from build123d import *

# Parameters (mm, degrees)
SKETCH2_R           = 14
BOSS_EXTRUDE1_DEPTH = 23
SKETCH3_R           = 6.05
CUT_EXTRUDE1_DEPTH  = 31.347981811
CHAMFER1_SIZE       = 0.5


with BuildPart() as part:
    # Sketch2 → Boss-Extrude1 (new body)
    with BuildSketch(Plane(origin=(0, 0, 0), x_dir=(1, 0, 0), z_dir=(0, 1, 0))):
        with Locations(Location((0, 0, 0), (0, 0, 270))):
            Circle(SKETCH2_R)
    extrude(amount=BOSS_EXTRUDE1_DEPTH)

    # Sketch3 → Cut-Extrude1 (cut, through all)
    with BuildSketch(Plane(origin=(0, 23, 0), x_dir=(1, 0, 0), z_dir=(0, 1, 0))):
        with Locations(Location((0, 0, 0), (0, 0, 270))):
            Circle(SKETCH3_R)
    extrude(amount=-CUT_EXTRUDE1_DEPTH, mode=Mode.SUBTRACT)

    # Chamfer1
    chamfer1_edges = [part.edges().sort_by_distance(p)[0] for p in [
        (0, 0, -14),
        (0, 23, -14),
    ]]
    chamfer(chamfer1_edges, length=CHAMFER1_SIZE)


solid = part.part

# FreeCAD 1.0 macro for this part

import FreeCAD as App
import Part
import Sketcher

V = App.Vector
Q = App.Units.Quantity


def edges_at(feature, points):
    """Names of the edges that pass closest to the given points."""
    edges = feature.Shape.Edges
    near = lambda p: min(range(len(edges)), key=lambda i: edges[i].distToShape(Part.Vertex(*p))[0])
    return sorted({f"Edge{near(p) + 1}" for p in points})

doc = App.newDocument("Part")
body = doc.addObject("PartDesign::Body", "Body")

# Sketch on XZ plane
sketch1 = body.newObject("Sketcher::SketchObject", "Sketch")
sketch1.AttachmentSupport = (doc.getObject("XZ_Plane"), [""])
sketch1.MapMode = "FlatFace"
sketch1.addGeometry(Part.Circle(V(0, 0, 0), V(0, 0, 1), 14), False)
sketch1.addConstraint([
    Sketcher.Constraint("Coincident", 0, 3, -1, 1),
    Sketcher.Constraint("Diameter", 0, Q("28 mm")),
])
pad1 = body.newObject("PartDesign::Pad", "Pad")
pad1.Profile = sketch1
pad1.Length = 23
pad1.Reversed = True

# Sketch on XZ plane
sketch2 = body.newObject("Sketcher::SketchObject", "Sketch001")
sketch2.AttachmentSupport = (doc.getObject("XZ_Plane"), [""])
sketch2.MapMode = "FlatFace"
sketch2.AttachmentOffset = App.Placement(V(0, 0, -23), App.Rotation())
sketch2.addGeometry(Part.Circle(V(0, 0, 0), V(0, 0, 1), 6), False)
sketch2.addConstraint([
    Sketcher.Constraint("Coincident", 0, 3, -1, 1),
    Sketcher.Constraint("Diameter", 0, Q("12.1 mm")),
])
pocket1 = body.newObject("PartDesign::Pocket", "Pocket")
pocket1.Profile = sketch2
pocket1.Type = "ThroughAll"
pocket1.Reversed = True
doc.recompute()

chamfer = body.newObject("PartDesign::Chamfer", "Chamfer")
chamfer.Base = (pocket1, edges_at(pocket1, [(0, 0, -14), (0, 23, -14)]))
chamfer.Size = 0.5

doc.recompute()
